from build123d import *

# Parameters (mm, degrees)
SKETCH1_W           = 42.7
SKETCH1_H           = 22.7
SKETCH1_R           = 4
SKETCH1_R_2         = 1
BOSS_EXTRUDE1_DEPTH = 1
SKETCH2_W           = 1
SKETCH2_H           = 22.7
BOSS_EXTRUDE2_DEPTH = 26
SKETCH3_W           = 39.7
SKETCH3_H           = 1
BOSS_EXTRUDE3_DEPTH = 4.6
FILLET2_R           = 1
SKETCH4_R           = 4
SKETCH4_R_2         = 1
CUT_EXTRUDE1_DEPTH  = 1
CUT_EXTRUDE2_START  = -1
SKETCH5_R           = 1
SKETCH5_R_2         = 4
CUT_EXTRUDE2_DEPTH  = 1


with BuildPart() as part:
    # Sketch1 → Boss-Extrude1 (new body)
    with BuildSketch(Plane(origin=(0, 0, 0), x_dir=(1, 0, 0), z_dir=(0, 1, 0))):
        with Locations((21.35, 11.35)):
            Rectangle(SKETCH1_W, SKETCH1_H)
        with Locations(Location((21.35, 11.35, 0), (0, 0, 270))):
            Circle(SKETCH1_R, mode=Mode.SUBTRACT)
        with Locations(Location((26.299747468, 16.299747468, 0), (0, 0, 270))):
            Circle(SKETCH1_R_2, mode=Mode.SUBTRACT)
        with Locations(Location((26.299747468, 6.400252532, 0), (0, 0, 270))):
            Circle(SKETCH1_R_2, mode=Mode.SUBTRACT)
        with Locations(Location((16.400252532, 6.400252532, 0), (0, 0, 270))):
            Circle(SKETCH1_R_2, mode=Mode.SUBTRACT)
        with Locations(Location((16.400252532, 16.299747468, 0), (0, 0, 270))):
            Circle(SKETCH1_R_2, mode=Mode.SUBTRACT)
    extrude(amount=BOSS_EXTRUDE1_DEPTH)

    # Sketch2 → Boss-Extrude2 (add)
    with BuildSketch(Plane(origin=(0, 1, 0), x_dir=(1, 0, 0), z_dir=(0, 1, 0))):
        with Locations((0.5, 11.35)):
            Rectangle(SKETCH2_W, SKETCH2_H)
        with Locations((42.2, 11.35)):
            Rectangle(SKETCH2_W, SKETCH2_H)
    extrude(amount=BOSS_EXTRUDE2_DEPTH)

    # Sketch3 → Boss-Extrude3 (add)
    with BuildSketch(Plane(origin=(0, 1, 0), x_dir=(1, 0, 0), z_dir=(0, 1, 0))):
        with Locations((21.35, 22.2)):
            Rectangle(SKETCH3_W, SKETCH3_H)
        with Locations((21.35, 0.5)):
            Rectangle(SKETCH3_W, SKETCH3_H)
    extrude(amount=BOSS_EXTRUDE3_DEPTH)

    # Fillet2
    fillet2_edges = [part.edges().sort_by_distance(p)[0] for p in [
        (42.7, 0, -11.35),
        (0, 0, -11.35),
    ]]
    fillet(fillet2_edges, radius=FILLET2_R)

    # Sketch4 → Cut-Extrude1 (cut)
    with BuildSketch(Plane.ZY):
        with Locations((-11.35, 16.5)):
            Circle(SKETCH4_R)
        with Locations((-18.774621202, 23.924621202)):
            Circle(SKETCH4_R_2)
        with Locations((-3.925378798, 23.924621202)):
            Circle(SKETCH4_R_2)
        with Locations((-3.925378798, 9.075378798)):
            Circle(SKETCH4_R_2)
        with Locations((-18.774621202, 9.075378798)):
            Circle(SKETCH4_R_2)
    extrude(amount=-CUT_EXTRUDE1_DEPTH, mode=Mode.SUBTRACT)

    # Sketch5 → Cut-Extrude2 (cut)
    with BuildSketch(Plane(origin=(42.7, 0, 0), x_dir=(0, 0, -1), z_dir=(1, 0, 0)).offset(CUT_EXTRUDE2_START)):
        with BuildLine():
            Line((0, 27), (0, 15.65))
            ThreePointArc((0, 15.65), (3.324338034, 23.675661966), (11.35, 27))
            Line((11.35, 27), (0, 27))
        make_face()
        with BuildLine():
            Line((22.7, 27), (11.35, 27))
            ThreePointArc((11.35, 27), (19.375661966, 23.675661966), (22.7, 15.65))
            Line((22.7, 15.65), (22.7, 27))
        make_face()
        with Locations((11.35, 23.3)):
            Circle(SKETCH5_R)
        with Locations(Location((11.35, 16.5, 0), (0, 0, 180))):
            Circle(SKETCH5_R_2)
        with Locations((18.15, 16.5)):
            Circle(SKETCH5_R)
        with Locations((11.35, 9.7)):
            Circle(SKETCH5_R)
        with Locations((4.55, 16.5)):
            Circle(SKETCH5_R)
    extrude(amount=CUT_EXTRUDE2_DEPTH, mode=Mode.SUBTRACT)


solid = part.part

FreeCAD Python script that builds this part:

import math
import FreeCAD as App
import Part
import Sketcher
from FreeCAD import Vector


def edges_at(feature, points):
    """Names of the edges that pass closest to the given points."""
    edges = feature.Shape.Edges
    near = lambda p: min(range(len(edges)), key=lambda i: edges[i].distToShape(Part.Vertex(*p))[0])
    return sorted({f"Edge{near(p) + 1}" for p in points})

doc = App.newDocument("Part")
body = doc.addObject("PartDesign::Body", "Body")

# Sketch on XZ plane
sketch1 = body.newObject("Sketcher::SketchObject", "Sketch")
sketch1.AttachmentSupport = (doc.getObject("XZ_Plane"), [""])
sketch1.MapMode = "FlatFace"
sketch1.addGeometry(Part.LineSegment(Vector(0, -22.7, 0), Vector(0, 0, 0)), False)
sketch1.addGeometry(Part.LineSegment(Vector(0, 0, 0), Vector(42.7, 0, 0)), False)
sketch1.addGeometry(Part.LineSegment(Vector(42.7, 0, 0), Vector(42.7, -22.7, 0)), False)
sketch1.addGeometry(Part.LineSegment(Vector(42.7, -22.7, 0), Vector(0, -22.7, 0)), False)
sketch1.addGeometry(Part.Circle(Vector(16.4, -6.4, 0), Vector(0, 0, 1), 1), False)
sketch1.addGeometry(Part.Circle(Vector(26.3, -6.4, 0), Vector(0, 0, 1), 1), False)
sketch1.addGeometry(Part.Circle(Vector(16.4, -16.3, 0), Vector(0, 0, 1), 1), False)
sketch1.addGeometry(Part.Circle(Vector(21.4, -11.3, 0), Vector(0, 0, 1), 4), False)
sketch1.addGeometry(Part.Circle(Vector(26.3, -16.3, 0), Vector(0, 0, 1), 1), False)
sketch1.addConstraint(Sketcher.Constraint("Coincident", 0, 2, 1, 1))
sketch1.addConstraint(Sketcher.Constraint("Coincident", 1, 2, 2, 1))
sketch1.addConstraint(Sketcher.Constraint("Coincident", 2, 2, 3, 1))
sketch1.addConstraint(Sketcher.Constraint("Coincident", 3, 2, 0, 1))
sketch1.addConstraint(Sketcher.Constraint("Vertical", 0))
sketch1.addConstraint(Sketcher.Constraint("Horizontal", 1))
sketch1.addConstraint(Sketcher.Constraint("Vertical", 2))
sketch1.addConstraint(Sketcher.Constraint("Horizontal", 3))
sketch1.addConstraint(Sketcher.Constraint("Coincident", 0, 2, -1, 1))
sketch1.addConstraint(Sketcher.Constraint("Equal", 4, 5))
sketch1.addConstraint(Sketcher.Constraint("Equal", 5, 6))
sketch1.addConstraint(Sketcher.Constraint("Equal", 6, 8))
sketch1.addConstraint(Sketcher.Constraint("Horizontal", 4, 3, 5, 3))
sketch1.addConstraint(Sketcher.Constraint("Horizontal", 6, 3, 8, 3))
sketch1.addConstraint(Sketcher.Constraint("Vertical", 4, 3, 6, 3))
sketch1.addConstraint(Sketcher.Constraint("Vertical", 5, 3, 8, 3))
sketch1.addConstraint(Sketcher.Constraint("Diameter", 4, 2.0))
sketch1.addConstraint(Sketcher.Constraint("Diameter", 7, 8.0))
sketch1.addConstraint(Sketcher.Constraint("DistanceX", 1, 1, 1, 2, 42.7))
sketch1.addConstraint(Sketcher.Constraint("DistanceY", 0, 1, 0, 2, 22.7))
sketch1.addConstraint(Sketcher.Constraint("DistanceX", -1, 1, 7, 3, 21.35))
sketch1.addConstraint(Sketcher.Constraint("DistanceY", 7, 3, -1, 1, 11.35))
sketch1.addConstraint(Sketcher.Constraint("DistanceX", -1, 1, 4, 3, 16.400253))
sketch1.addConstraint(Sketcher.Constraint("DistanceY", 4, 3, -1, 1, 6.400253))
sketch1.addConstraint(Sketcher.Constraint("DistanceX", -1, 1, 5, 3, 26.299747))
sketch1.addConstraint(Sketcher.Constraint("DistanceY", 6, 3, -1, 1, 16.299747))
pad1 = body.newObject("PartDesign::Pad", "Pad")
pad1.Profile = sketch1
pad1.Length = 1
pad1.Reversed = True

# Sketch on XZ plane
sketch2 = body.newObject("Sketcher::SketchObject", "Sketch001")
sketch2.AttachmentSupport = (doc.getObject("XZ_Plane"), [""])
sketch2.MapMode = "FlatFace"
sketch2.AttachmentOffset = App.Placement(Vector(0, 0, -1), App.Rotation())
sketch2.addGeometry(Part.LineSegment(Vector(0, -22.7, 0), Vector(0, 0, 0)), False)
sketch2.addGeometry(Part.LineSegment(Vector(0, 0, 0), Vector(1, 0, 0)), False)
sketch2.addGeometry(Part.LineSegment(Vector(1, 0, 0), Vector(1, -22.7, 0)), False)
sketch2.addGeometry(Part.LineSegment(Vector(1, -22.7, 0), Vector(0, -22.7, 0)), False)
sketch2.addGeometry(Part.LineSegment(Vector(41.7, -22.7, 0), Vector(41.7, 0, 0)), False)
sketch2.addGeometry(Part.LineSegment(Vector(41.7, 0, 0), Vector(42.7, 0, 0)), False)
sketch2.addGeometry(Part.LineSegment(Vector(42.7, 0, 0), Vector(42.7, -22.7, 0)), False)
sketch2.addGeometry(Part.LineSegment(Vector(42.7, -22.7, 0), Vector(41.7, -22.7, 0)), False)
sketch2.addConstraint(Sketcher.Constraint("Coincident", 0, 2, 1, 1))
sketch2.addConstraint(Sketcher.Constraint("Coincident", 1, 2, 2, 1))
sketch2.addConstraint(Sketcher.Constraint("Coincident", 2, 2, 3, 1))
sketch2.addConstraint(Sketcher.Constraint("Coincident", 3, 2, 0, 1))
sketch2.addConstraint(Sketcher.Constraint("Coincident", 4, 2, 5, 1))
sketch2.addConstraint(Sketcher.Constraint("Coincident", 5, 2, 6, 1))
sketch2.addConstraint(Sketcher.Constraint("Coincident", 6, 2, 7, 1))
sketch2.addConstraint(Sketcher.Constraint("Coincident", 7, 2, 4, 1))
sketch2.addConstraint(Sketcher.Constraint("Vertical", 0))
sketch2.addConstraint(Sketcher.Constraint("Horizontal", 1))
sketch2.addConstraint(Sketcher.Constraint("Vertical", 2))
sketch2.addConstraint(Sketcher.Constraint("Horizontal", 3))
sketch2.addConstraint(Sketcher.Constraint("Vertical", 4))
sketch2.addConstraint(Sketcher.Constraint("Horizontal", 5))
sketch2.addConstraint(Sketcher.Constraint("Vertical", 6))
sketch2.addConstraint(Sketcher.Constraint("Horizontal", 7))
sketch2.addConstraint(Sketcher.Constraint("Coincident", 0, 2, -1, 1))
sketch2.addConstraint(Sketcher.Constraint("PointOnObject", 4, 2, -1))
sketch2.addConstraint(Sketcher.Constraint("Horizontal", 3, 2, 6, 2))
sketch2.addConstraint(Sketcher.Constraint("Equal", 3, 5))
sketch2.addConstraint(Sketcher.Constraint("DistanceX", 1, 1, 1, 2, 1.0))
sketch2.addConstraint(Sketcher.Constraint("DistanceY", 0, 1, 0, 2, 22.7))
sketch2.addConstraint(Sketcher.Constraint("DistanceX", -1, 1, 4, 2, 41.7))
pad2 = body.newObject("PartDesign::Pad", "Pad001")
pad2.Profile = sketch2
pad2.Length = 26
pad2.Reversed = True

# Sketch on XZ plane
sketch3 = body.newObject("Sketcher::SketchObject", "Sketch002")
sketch3.AttachmentSupport = (doc.getObject("XZ_Plane"), [""])
sketch3.MapMode = "FlatFace"
sketch3.AttachmentOffset = App.Placement(Vector(0, 0, -1), App.Rotation())
sketch3.addGeometry(Part.LineSegment(Vector(1.5, -22.7, 0), Vector(1.5, -21.7, 0)), False)
sketch3.addGeometry(Part.LineSegment(Vector(1.5, -21.7, 0), Vector(41.2, -21.7, 0)), False)
sketch3.addGeometry(Part.LineSegment(Vector(41.2, -21.7, 0), Vector(41.2, -22.7, 0)), False)
sketch3.addGeometry(Part.LineSegment(Vector(41.2, -22.7, 0), Vector(1.5, -22.7, 0)), False)
sketch3.addGeometry(Part.LineSegment(Vector(1.5, -1, 0), Vector(1.5, 0, 0)), False)
sketch3.addGeometry(Part.LineSegment(Vector(1.5, 0, 0), Vector(41.2, 0, 0)), False)
sketch3.addGeometry(Part.LineSegment(Vector(41.2, 0, 0), Vector(41.2, -1, 0)), False)
sketch3.addGeometry(Part.LineSegment(Vector(41.2, -1, 0), Vector(1.5, -1, 0)), False)
sketch3.addConstraint(Sketcher.Constraint("Coincident", 0, 2, 1, 1))
sketch3.addConstraint(Sketcher.Constraint("Coincident", 1, 2, 2, 1))
sketch3.addConstraint(Sketcher.Constraint("Coincident", 2, 2, 3, 1))
sketch3.addConstraint(Sketcher.Constraint("Coincident", 3, 2, 0, 1))
sketch3.addConstraint(Sketcher.Constraint("Coincident", 4, 2, 5, 1))
sketch3.addConstraint(Sketcher.Constraint("Coincident", 5, 2, 6, 1))
sketch3.addConstraint(Sketcher.Constraint("Coincident", 6, 2, 7, 1))
sketch3.addConstraint(Sketcher.Constraint("Coincident", 7, 2, 4, 1))
sketch3.addConstraint(Sketcher.Constraint("Vertical", 0))
sketch3.addConstraint(Sketcher.Constraint("Horizontal", 1))
sketch3.addConstraint(Sketcher.Constraint("Vertical", 2))
sketch3.addConstraint(Sketcher.Constraint("Horizontal", 3))
sketch3.addConstraint(Sketcher.Constraint("Vertical", 4))
sketch3.addConstraint(Sketcher.Constraint("Horizontal", 5))
sketch3.addConstraint(Sketcher.Constraint("Vertical", 6))
sketch3.addConstraint(Sketcher.Constraint("Horizontal", 7))
sketch3.addConstraint(Sketcher.Constraint("PointOnObject", 4, 2, -1))
sketch3.addConstraint(Sketcher.Constraint("Vertical", 3, 2, 4, 2))
sketch3.addConstraint(Sketcher.Constraint("Vertical", 2, 2, 5, 2))
sketch3.addConstraint(Sketcher.Constraint("Equal", 2, 4))
sketch3.addConstraint(Sketcher.Constraint("DistanceY", 0, 1, 0, 2, 1.0))
sketch3.addConstraint(Sketcher.Constraint("DistanceX", 1, 1, 1, 2, 39.7))
sketch3.addConstraint(Sketcher.Constraint("DistanceX", -1, 1, 0, 2, 1.5))
sketch3.addConstraint(Sketcher.Constraint("DistanceY", 0, 2, -1, 1, 21.7))
pad3 = body.newObject("PartDesign::Pad", "Pad002")
pad3.Profile = sketch3
pad3.Length = 4.6
pad3.Reversed = True
doc.recompute()

fillet = body.newObject("PartDesign::Fillet", "Fillet")
fillet.Base = (pad3, edges_at(pad3, [(42.7, 0, -11.35), (0, 0, -11.35)]))
fillet.Radius = 1

# Sketch on YZ plane
sketch4 = body.newObject("Sketcher::SketchObject", "Sketch003")
sketch4.AttachmentSupport = (doc.getObject("YZ_Plane"), [""])
sketch4.MapMode = "FlatFace"
sketch4.addGeometry(Part.Circle(Vector(16.5, -11.3, 0), Vector(0, 0, 1), 4), False)
sketch4.addGeometry(Part.Circle(Vector(23.9, -18.8, 0), Vector(0, 0, 1), 1), False)
sketch4.addGeometry(Part.Circle(Vector(23.9, -3.9, 0), Vector(0, 0, 1), 1), False)
sketch4.addGeometry(Part.Circle(Vector(9.1, -3.9, 0), Vector(0, 0, 1), 1), False)
sketch4.addGeometry(Part.Circle(Vector(9.1, -18.8, 0), Vector(0, 0, 1), 1), False)
sketch4.addConstraint(Sketcher.Constraint("Equal", 1, 2))
sketch4.addConstraint(Sketcher.Constraint("Equal", 2, 3))
sketch4.addConstraint(Sketcher.Constraint("Equal", 3, 4))
sketch4.addConstraint(Sketcher.Constraint("Horizontal", 2, 3, 3, 3))
sketch4.addConstraint(Sketcher.Constraint("Horizontal", 1, 3, 4, 3))
sketch4.addConstraint(Sketcher.Constraint("Vertical", 1, 3, 2, 3))
sketch4.addConstraint(Sketcher.Constraint("Vertical", 3, 3, 4, 3))
sketch4.addConstraint(Sketcher.Constraint("Diameter", 0, 8.0))
sketch4.addConstraint(Sketcher.Constraint("Diameter", 1, 2.0))
sketch4.addConstraint(Sketcher.Constraint("DistanceX", -1, 1, 0, 3, 16.5))
sketch4.addConstraint(Sketcher.Constraint("DistanceY", 0, 3, -1, 1, 11.35))
sketch4.addConstraint(Sketcher.Constraint("DistanceX", -1, 1, 1, 3, 23.924621))
sketch4.addConstraint(Sketcher.Constraint("DistanceY", 1, 3, -1, 1, 18.774621))
sketch4.addConstraint(Sketcher.Constraint("DistanceY", 2, 3, -1, 1, 3.925379))
sketch4.addConstraint(Sketcher.Constraint("DistanceX", -1, 1, 3, 3, 9.075379))
pocket1 = body.newObject("PartDesign::Pocket", "Pocket")
pocket1.Profile = sketch4
pocket1.Length = 1
pocket1.Reversed = True

# Sketch on YZ plane
sketch5 = body.newObject("Sketcher::SketchObject", "Sketch004")
sketch5.AttachmentSupport = (doc.getObject("YZ_Plane"), [""])
sketch5.MapMode = "FlatFace"
sketch5.AttachmentOffset = App.Placement(Vector(0, 0, 41.7), App.Rotation())
sketch5.addGeometry(Part.LineSegment(Vector(27, 0, 0), Vector(15.7, 0, 0)), False)
sketch5.addGeometry(Part.ArcOfCircle(Part.Circle(Vector(15.6, -11.4, 0), Vector(0, 0, 1), 11.4), math.radians(0), math.radians(90)), False)
sketch5.addGeometry(Part.LineSegment(Vector(27, -11.3, 0), Vector(27, 0, 0)), False)
sketch5.addGeometry(Part.LineSegment(Vector(27, -22.7, 0), Vector(27, -11.3, 0)), False)
sketch5.addGeometry(Part.ArcOfCircle(Part.Circle(Vector(15.6, -11.3, 0), Vector(0, 0, 1), 11.4), math.radians(-90), math.radians(0)), False)
sketch5.addGeometry(Part.LineSegment(Vector(15.7, -22.7, 0), Vector(27, -22.7, 0)), False)
sketch5.addGeometry(Part.Circle(Vector(23.3, -11.3, 0), Vector(0, 0, 1), 1), False)
sketch5.addGeometry(Part.Circle(Vector(16.5, -11.3, 0), Vector(0, 0, 1), 4), False)
sketch5.addGeometry(Part.Circle(Vector(16.5, -18.1, 0), Vector(0, 0, 1), 1), False)
sketch5.addGeometry(Part.Circle(Vector(9.7, -11.3, 0), Vector(0, 0, 1), 1), False)
sketch5.addGeometry(Part.Circle(Vector(16.5, -4.5, 0), Vector(0, 0, 1), 1), False)
sketch5.addConstraint(Sketcher.Constraint("Tangent", 0, 2, 1, 2))
sketch5.addConstraint(Sketcher.Constraint("Tangent", 1, 1, 2, 1))
sketch5.addConstraint(Sketcher.Constraint("Coincident", 2, 2, 0, 1))
sketch5.addConstraint(Sketcher.Constraint("Tangent", 3, 2, 4, 2))
sketch5.addConstraint(Sketcher.Constraint("Tangent", 4, 1, 5, 1))
sketch5.addConstraint(Sketcher.Constraint("Coincident", 5, 2, 3, 1))
sketch5.addConstraint(Sketcher.Constraint("Horizontal", 0))
sketch5.addConstraint(Sketcher.Constraint("Vertical", 2))
sketch5.addConstraint(Sketcher.Constraint("Vertical", 3))
sketch5.addConstraint(Sketcher.Constraint("Horizontal", 5))
sketch5.addConstraint(Sketcher.Constraint("Coincident", 4, 3, 1, 3))
sketch5.addConstraint(Sketcher.Constraint("Equal", 1, 4))
sketch5.addConstraint(Sketcher.Constraint("Equal", 6, 8))
sketch5.addConstraint(Sketcher.Constraint("Equal", 8, 9))
sketch5.addConstraint(Sketcher.Constraint("Equal", 9, 10))
sketch5.addConstraint(Sketcher.Constraint("PointOnObject", 0, 2, -1))
sketch5.addConstraint(Sketcher.Constraint("Horizontal", 4, 3, 6, 3))
sketch5.addConstraint(Sketcher.Constraint("Horizontal", 6, 3, 7, 3))
sketch5.addConstraint(Sketcher.Constraint("Horizontal", 7, 3, 9, 3))
sketch5.addConstraint(Sketcher.Constraint("Vertical", 7, 3, 8, 3))
sketch5.addConstraint(Sketcher.Constraint("Vertical", 8, 3, 10, 3))
sketch5.addConstraint(Sketcher.Constraint("Diameter", 6, 2.0))
sketch5.addConstraint(Sketcher.Constraint("Diameter", 7, 8.0))
sketch5.addConstraint(Sketcher.Constraint("Radius", 1, 11.35))
sketch5.addConstraint(Sketcher.Constraint("DistanceX", -1, 1, 1, 1, 27.0))
sketch5.addConstraint(Sketcher.Constraint("DistanceX", -1, 1, 6, 3, 23.3))
sketch5.addConstraint(Sketcher.Constraint("DistanceX", -1, 1, 7, 3, 16.5))
sketch5.addConstraint(Sketcher.Constraint("DistanceX", -1, 1, 9, 3, 9.7))
sketch5.addConstraint(Sketcher.Constraint("DistanceY", 8, 3, 7, 3, 6.8))
sketch5.addConstraint(Sketcher.Constraint("DistanceY", 7, 3, 10, 3, 6.8))
pocket2 = body.newObject("PartDesign::Pocket", "Pocket001")
pocket2.Profile = sketch5
pocket2.Length = 1
pocket2.Reversed = True

doc.recompute()
